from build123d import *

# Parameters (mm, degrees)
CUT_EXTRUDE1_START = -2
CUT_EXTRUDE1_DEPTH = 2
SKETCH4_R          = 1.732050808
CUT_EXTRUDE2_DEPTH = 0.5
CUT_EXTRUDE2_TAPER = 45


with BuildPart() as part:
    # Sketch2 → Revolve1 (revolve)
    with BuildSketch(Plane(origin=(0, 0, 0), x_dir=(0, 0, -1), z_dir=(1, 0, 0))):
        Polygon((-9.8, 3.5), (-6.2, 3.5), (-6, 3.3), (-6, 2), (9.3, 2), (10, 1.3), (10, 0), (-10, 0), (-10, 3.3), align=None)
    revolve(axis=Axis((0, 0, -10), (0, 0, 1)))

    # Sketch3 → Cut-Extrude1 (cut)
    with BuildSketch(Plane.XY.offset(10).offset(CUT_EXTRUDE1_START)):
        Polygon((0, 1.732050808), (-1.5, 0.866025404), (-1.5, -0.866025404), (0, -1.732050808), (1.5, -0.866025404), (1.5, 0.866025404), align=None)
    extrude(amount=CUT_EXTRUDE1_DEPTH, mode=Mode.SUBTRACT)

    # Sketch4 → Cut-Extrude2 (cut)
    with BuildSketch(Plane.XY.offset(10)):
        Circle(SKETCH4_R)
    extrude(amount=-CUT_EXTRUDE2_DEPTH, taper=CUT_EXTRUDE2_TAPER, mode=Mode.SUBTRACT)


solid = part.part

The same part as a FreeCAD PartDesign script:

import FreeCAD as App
import Part
import Sketcher
Q = App.Units.Quantity


def add_polygon(sketch, points):
    """Adds a closed chain of lines whose ends are joined by coincident constraints."""
    first, n = sketch.GeometryCount, len(points)
    for a, b in zip(points, points[1:] + points[:1]):
        sketch.addGeometry(Part.LineSegment(App.Vector(*a, 0), App.Vector(*b, 0)), False)
    for i in range(n):
        sketch.addConstraint(Sketcher.Constraint("Coincident", first + i, 2, first + (i + 1) % n, 1))

doc = App.newDocument("Part")
body = doc.addObject("PartDesign::Body", "Body")

# Sketch on YZ plane
sketch1 = doc.addObject("Sketcher::SketchObject", "Sketch")
body.addObject(sketch1)
sketch1.AttachmentSupport = (doc.YZ_Plane, [""])
sketch1.MapMode = "FlatFace"
add_polygon(sketch1, [(3.5, 6.2), (3.5, 9.8), (3.3, 10), (0, 10), (0, -10), (1.3, -10), (2, -9.3), (2, 6), (3.3, 6)])  # lines 0-8
sketch1.addConstraint([
    Sketcher.Constraint("Vertical", 0),
    Sketcher.Constraint("Horizontal", 2),
    Sketcher.Constraint("Vertical", 3),
    Sketcher.Constraint("Horizontal", 4),
    Sketcher.Constraint("Vertical", 6),
    Sketcher.Constraint("Horizontal", 7),
    Sketcher.Constraint("Symmetric", 2, 2, 3, 2, -1, 1),
    Sketcher.Constraint("Perpendicular", 1, 5),
    Sketcher.Constraint("Parallel", 5, 8),
    Sketcher.Constraint("Vertical", 1, 2, 7, 2),
    Sketcher.Constraint("Equal", 4, 7),
    Sketcher.Constraint("Equal", 1, 8),
    Sketcher.Constraint("DistanceY", 3, 2, 3, 1, Q("20 mm")),
    Sketcher.Constraint("DistanceX", 2, 2, 2, 1, Q("3.3 mm")),
    Sketcher.Constraint("DistanceX", 4, 1, 4, 2, Q("1.3 mm")),
    Sketcher.Constraint("DistanceY", 0, 1, 0, 2, Q("3.6 mm")),
    Sketcher.Constraint("DistanceY", 6, 1, 6, 2, Q("15.3 mm")),
])
revolution = doc.addObject("PartDesign::Revolution", "Revolution")
body.addObject(revolution)
revolution.Profile = sketch1
revolution.ReferenceAxis = (sketch1, ["V_Axis"])
revolution.Angle = 360

# Sketch on XY plane
sketch2 = doc.addObject("Sketcher::SketchObject", "Sketch001")
body.addObject(sketch2)
sketch2.AttachmentSupport = (doc.XY_Plane, [""])
sketch2.MapMode = "FlatFace"
sketch2.AttachmentOffset = App.Placement(App.Vector(0, 0, 8), App.Rotation())
add_polygon(sketch2, [(0, 1.7), (-1.5, 0.9), (-1.5, -0.9), (0, -1.7), (1.5, -0.9), (1.5, 0.9)])  # lines 0-5
sketch2.addConstraint([
    Sketcher.Constraint("Vertical", 1),
    Sketcher.Constraint("Vertical", 4),
    Sketcher.Constraint("Symmetric", 0, 2, 3, 2, -1, 1),
    Sketcher.Constraint("Symmetric", 2, 2, 5, 2, -1, 1),
    Sketcher.Constraint("PointOnObject", 2, 2, -2),
    Sketcher.Constraint("Parallel", 2, 5),
    Sketcher.Constraint("Horizontal", 1, 2, 3, 2),
    Sketcher.Constraint("Angle", 0, Q("-150 deg")),
    Sketcher.Constraint("DistanceX", 1, 2, 3, 2, Q("3 mm")),
    Sketcher.Constraint("DistanceY", 1, 2, 1, 1, Q("1.732051 mm")),
])
pocket1 = doc.addObject("PartDesign::Pocket", "Pocket")
body.addObject(pocket1)
pocket1.Profile = sketch2
pocket1.Length = 2
pocket1.Reversed = True

# Sketch on XY plane
sketch3 = doc.addObject("Sketcher::SketchObject", "Sketch002")
body.addObject(sketch3)
sketch3.AttachmentSupport = (doc.XY_Plane, [""])
sketch3.MapMode = "FlatFace"
sketch3.AttachmentOffset = App.Placement(App.Vector(0, 0, 10), App.Rotation())
sketch3.addGeometry(Part.Circle(App.Vector(0, 0, 0), App.Vector(0, 0, 1), 1.7), False)
sketch3.addConstraint([
    Sketcher.Constraint("Coincident", 0, 3, -1, 1),
    Sketcher.Constraint("Diameter", 0, Q("3.464102 mm")),
])
pocket2 = doc.addObject("PartDesign::Pocket", "Pocket001")
body.addObject(pocket2)
pocket2.Profile = sketch3
pocket2.Length = 0.5
pocket2.TaperAngle = -45

doc.recompute()
